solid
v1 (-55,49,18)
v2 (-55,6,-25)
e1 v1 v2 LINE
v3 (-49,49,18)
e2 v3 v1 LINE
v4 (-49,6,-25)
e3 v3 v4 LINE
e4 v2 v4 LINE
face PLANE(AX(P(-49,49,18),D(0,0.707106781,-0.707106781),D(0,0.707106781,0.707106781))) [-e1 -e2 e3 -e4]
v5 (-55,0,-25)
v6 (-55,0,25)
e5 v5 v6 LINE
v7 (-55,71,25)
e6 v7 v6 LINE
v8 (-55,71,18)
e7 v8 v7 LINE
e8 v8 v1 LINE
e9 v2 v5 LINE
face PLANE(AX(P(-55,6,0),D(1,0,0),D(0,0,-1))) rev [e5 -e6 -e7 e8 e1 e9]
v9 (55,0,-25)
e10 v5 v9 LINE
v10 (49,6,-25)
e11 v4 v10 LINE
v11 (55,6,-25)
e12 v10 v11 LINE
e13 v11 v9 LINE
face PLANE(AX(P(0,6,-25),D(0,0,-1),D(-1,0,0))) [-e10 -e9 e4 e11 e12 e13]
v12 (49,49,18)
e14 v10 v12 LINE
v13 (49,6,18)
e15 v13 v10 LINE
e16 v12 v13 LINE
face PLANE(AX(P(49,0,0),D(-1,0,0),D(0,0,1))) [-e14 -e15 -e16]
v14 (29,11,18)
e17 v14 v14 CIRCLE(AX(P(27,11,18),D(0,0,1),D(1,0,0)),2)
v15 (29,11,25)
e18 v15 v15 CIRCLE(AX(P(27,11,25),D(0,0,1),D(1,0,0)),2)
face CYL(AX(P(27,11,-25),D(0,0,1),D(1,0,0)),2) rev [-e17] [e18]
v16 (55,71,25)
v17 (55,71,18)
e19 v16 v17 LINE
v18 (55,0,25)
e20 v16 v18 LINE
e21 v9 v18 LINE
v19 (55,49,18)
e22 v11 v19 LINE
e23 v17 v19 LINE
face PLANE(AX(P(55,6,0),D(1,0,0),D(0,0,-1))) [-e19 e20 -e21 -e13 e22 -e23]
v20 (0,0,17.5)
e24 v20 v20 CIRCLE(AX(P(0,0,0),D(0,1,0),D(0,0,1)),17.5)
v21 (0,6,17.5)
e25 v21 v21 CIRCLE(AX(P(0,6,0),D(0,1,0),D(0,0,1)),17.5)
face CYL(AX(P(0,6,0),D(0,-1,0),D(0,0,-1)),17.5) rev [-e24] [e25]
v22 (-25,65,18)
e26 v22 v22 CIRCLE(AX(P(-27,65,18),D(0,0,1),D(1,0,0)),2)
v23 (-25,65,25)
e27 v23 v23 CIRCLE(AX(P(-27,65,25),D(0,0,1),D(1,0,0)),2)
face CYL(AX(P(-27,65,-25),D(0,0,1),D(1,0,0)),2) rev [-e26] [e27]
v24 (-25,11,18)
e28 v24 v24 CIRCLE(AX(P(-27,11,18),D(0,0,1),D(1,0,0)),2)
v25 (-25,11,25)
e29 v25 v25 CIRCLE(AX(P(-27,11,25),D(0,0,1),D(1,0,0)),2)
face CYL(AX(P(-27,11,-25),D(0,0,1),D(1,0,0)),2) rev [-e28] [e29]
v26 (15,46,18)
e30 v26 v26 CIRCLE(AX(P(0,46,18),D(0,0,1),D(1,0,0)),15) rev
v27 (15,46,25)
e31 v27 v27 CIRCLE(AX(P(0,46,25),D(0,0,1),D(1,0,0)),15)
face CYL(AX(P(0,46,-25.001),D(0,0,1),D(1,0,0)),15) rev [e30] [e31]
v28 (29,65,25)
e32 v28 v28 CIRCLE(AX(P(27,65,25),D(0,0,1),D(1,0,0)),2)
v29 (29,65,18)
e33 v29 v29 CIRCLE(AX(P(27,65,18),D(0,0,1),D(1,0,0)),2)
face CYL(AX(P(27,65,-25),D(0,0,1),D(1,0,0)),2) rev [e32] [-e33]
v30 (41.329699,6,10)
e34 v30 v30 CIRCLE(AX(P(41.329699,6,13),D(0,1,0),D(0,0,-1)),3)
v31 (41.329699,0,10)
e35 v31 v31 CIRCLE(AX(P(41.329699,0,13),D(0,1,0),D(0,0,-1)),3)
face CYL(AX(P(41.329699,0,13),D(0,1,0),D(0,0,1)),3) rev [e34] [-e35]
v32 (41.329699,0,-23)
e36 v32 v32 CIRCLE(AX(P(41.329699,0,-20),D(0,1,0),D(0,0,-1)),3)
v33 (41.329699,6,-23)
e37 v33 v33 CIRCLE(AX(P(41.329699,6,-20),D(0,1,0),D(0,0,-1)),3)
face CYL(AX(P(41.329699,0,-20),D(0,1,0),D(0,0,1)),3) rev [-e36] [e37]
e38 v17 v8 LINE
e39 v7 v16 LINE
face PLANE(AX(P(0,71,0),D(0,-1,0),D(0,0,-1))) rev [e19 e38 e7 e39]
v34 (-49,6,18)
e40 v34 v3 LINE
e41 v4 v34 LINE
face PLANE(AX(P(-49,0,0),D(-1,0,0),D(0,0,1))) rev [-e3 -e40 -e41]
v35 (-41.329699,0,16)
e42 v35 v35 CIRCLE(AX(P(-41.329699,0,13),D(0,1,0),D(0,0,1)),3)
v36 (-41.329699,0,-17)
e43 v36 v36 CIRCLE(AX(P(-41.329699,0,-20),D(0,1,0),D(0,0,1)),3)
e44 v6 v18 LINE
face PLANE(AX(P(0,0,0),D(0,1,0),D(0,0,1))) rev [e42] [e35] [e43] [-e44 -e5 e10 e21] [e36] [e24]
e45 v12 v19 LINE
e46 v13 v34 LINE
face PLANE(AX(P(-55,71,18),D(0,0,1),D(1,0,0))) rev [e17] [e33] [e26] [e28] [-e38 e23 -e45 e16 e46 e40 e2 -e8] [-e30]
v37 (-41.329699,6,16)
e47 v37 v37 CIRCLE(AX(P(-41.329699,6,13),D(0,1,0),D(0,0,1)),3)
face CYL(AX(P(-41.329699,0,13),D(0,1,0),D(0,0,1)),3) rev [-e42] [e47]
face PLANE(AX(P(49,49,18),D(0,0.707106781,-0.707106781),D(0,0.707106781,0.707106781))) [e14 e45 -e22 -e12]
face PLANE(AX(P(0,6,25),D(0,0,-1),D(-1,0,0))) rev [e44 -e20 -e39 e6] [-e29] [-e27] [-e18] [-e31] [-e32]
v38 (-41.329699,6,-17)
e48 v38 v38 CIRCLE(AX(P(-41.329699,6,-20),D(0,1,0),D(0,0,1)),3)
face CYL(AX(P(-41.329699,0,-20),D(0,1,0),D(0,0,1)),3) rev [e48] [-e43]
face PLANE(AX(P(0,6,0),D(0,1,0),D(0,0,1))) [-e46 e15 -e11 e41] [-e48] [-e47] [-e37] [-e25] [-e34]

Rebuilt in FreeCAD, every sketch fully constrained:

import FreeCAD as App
import Part
import Sketcher


def add_polygon(sketch, points):
    """Adds a closed chain of lines whose ends are joined by coincident constraints."""
    first, n = sketch.GeometryCount, len(points)
    for a, b in zip(points, points[1:] + points[:1]):
        sketch.addGeometry(Part.LineSegment(App.Vector(*a, 0), App.Vector(*b, 0)), False)
    for i in range(n):
        sketch.addConstraint(Sketcher.Constraint("Coincident", first + i, 2, first + (i + 1) % n, 1))

doc = App.newDocument("Part")
params = doc.addObject("Spreadsheet::Sheet", "Params")
for row, (alias, value) in enumerate([
    ("sketch1_diameter", "35 mm"),
    ("sketch1_width", "110 mm"),
    ("sketch1_height", "50 mm"),
    ("pad1_length", "6 mm"),
    ("sketch2_width", "110 mm"),
    ("sketch2_height", "7 mm"),
    ("pad2_length", "65 mm"),
    ("sketch3_width", "43 mm"),
    ("pad3_length", "6 mm"),
    ("sketch4_width", "43 mm"),
    ("pad4_length", "6 mm"),
    ("sketch5_diameter", "30 mm"),
    ("sketch6_diameter", "6 mm"),
    ("sketch7_diameter", "4 mm"),
], start=1):
    params.set(f"A{row}", alias)
    params.set(f"B{row}", "=" + value)
    params.setAlias(f"B{row}", alias)

body = doc.addObject("PartDesign::Body", "Body")

sketch1 = doc.addObject("Sketcher::SketchObject", "Sketch")
body.addObject(sketch1)
sketch1.AttachmentSupport = (doc.XZ_Plane, [""])
sketch1.MapMode = "FlatFace"
add_polygon(sketch1, [(-55, -25), (-55, 25), (55, 25), (55, -25)])
sketch1.addGeometry(Part.Circle(App.Vector(0, 0, 0), App.Vector(0, 0, 1), 18), False)
sketch1.addConstraint([
    Sketcher.Constraint("Vertical", 0),
    Sketcher.Constraint("Horizontal", 1),
    Sketcher.Constraint("Vertical", 2),
    Sketcher.Constraint("Horizontal", 3),
    Sketcher.Constraint("Coincident", 4, 3, -1, 1),
    Sketcher.Constraint("Symmetric", 0, 2, 2, 2, -1, 1),
    Sketcher.Constraint("Diameter", 4, 35.0),
    Sketcher.Constraint("DistanceX", 1, 1, 1, 2, 110.0),
    Sketcher.Constraint("DistanceY", 0, 1, 0, 2, 50.0),
])
sketch1.setExpression("Constraints[10]", "Params.sketch1_diameter")
sketch1.setExpression("Constraints[11]", "Params.sketch1_width")
sketch1.setExpression("Constraints[12]", "Params.sketch1_height")
pad1 = doc.addObject("PartDesign::Pad", "Pad")
body.addObject(pad1)
pad1.Profile = sketch1
pad1.setExpression("Length", "Params.pad1_length")
pad1.Reversed = True

sketch2 = doc.addObject("Sketcher::SketchObject", "Sketch001")
body.addObject(sketch2)
sketch2.AttachmentSupport = (doc.XZ_Plane, [""])
sketch2.MapMode = "FlatFace"
sketch2.AttachmentOffset = App.Placement(App.Vector(0, 0, -6), App.Rotation())
add_polygon(sketch2, [(-55, 18), (-55, 25), (55, 25), (55, 18)])
sketch2.addConstraint([
    Sketcher.Constraint("Vertical", 0),
    Sketcher.Constraint("Horizontal", 1),
    Sketcher.Constraint("Vertical", 2),
    Sketcher.Constraint("Horizontal", 3),
    Sketcher.Constraint("DistanceX", 1, 1, 1, 2, 110.0),
    Sketcher.Constraint("DistanceY", 0, 1, 0, 2, 7.0),
    Sketcher.Constraint("DistanceX", 0, 2, -1, 1, 55.0),
    Sketcher.Constraint("DistanceY", -1, 1, 0, 2, 25.0),
])
sketch2.setExpression("Constraints[8]", "Params.sketch2_width")
sketch2.setExpression("Constraints[9]", "Params.sketch2_height")
pad2 = doc.addObject("PartDesign::Pad", "Pad001")
body.addObject(pad2)
pad2.Profile = sketch2
pad2.setExpression("Length", "Params.pad2_length")
pad2.Reversed = True

sketch3 = doc.addObject("Sketcher::SketchObject", "Sketch002")
body.addObject(sketch3)
sketch3.AttachmentSupport = (doc.YZ_Plane, [""])
sketch3.MapMode = "FlatFace"
sketch3.AttachmentOffset = App.Placement(App.Vector(0, 0, 55), App.Rotation())
add_polygon(sketch3, [(6, 18), (6, -25), (49, 18)])
sketch3.addConstraint([
    Sketcher.Constraint("Vertical", 0),
    Sketcher.Constraint("Horizontal", 2),
    Sketcher.Constraint("Equal", 2, 0),
    Sketcher.Constraint("DistanceX", 2, 2, 2, 1, 43.0),
    Sketcher.Constraint("DistanceX", -1, 1, 0, 2, 6.0),
    Sketcher.Constraint("DistanceY", 0, 2, -1, 1, 25.0),
])
sketch3.setExpression("Constraints[6]", "Params.sketch3_width")
pad3 = doc.addObject("PartDesign::Pad", "Pad002")
body.addObject(pad3)
pad3.Profile = sketch3
pad3.setExpression("Length", "Params.pad3_length")
pad3.Reversed = True

sketch4 = doc.addObject("Sketcher::SketchObject", "Sketch003")
body.addObject(sketch4)
sketch4.AttachmentSupport = (doc.YZ_Plane, [""])
sketch4.MapMode = "FlatFace"
sketch4.AttachmentOffset = App.Placement(App.Vector(0, 0, -55), App.Rotation())
add_polygon(sketch4, [(6, -25), (6, 18), (49, 18)])
sketch4.addConstraint([
    Sketcher.Constraint("Vertical", 0),
    Sketcher.Constraint("Horizontal", 1),
    Sketcher.Constraint("Equal", 1, 0),
    Sketcher.Constraint("DistanceX", 1, 1, 1, 2, 43.0),
    Sketcher.Constraint("DistanceX", -1, 1, 0, 2, 6.0),
    Sketcher.Constraint("DistanceY", -1, 1, 0, 2, 18.0),
])
sketch4.setExpression("Constraints[6]", "Params.sketch4_width")
pad4 = doc.addObject("PartDesign::Pad", "Pad003")
body.addObject(pad4)
pad4.Profile = sketch4
pad4.setExpression("Length", "Params.pad4_length")

sketch5 = doc.addObject("Sketcher::SketchObject", "Sketch004")
body.addObject(sketch5)
sketch5.AttachmentSupport = (doc.XY_Plane, [""])
sketch5.MapMode = "FlatFace"
sketch5.AttachmentOffset = App.Placement(App.Vector(0, 0, 25), App.Rotation())
sketch5.addGeometry(Part.Circle(App.Vector(0, 46, 0), App.Vector(0, 0, 1), 15), False)
sketch5.addConstraint([
    Sketcher.Constraint("PointOnObject", 0, 3, -2),
    Sketcher.Constraint("Diameter", 0, 30.0),
    Sketcher.Constraint("DistanceY", -1, 1, 0, 3, 46.0),
])
sketch5.setExpression("Constraints[1]", "Params.sketch5_diameter")
pocket1 = doc.addObject("PartDesign::Pocket", "Pocket")
body.addObject(pocket1)
pocket1.Profile = sketch5
pocket1.Type = "UpToFirst"

sketch6 = doc.addObject("Sketcher::SketchObject", "Sketch005")
body.addObject(sketch6)
sketch6.AttachmentSupport = (doc.XZ_Plane, [""])
sketch6.MapMode = "FlatFace"
sketch6.AttachmentOffset = App.Placement(App.Vector(0, 0, -6), App.Rotation())
sketch6.addGeometry([
    Part.Circle(App.Vector(-41.3, -20, 0), App.Vector(0, 0, 1), 3),
    Part.Circle(App.Vector(-41.3, 13, 0), App.Vector(0, 0, 1), 3),
    Part.Circle(App.Vector(41.3, 13, 0), App.Vector(0, 0, 1), 3),
    Part.Circle(App.Vector(41.3, -20, 0), App.Vector(0, 0, 1), 3),
], False)
sketch6.addConstraint([
    Sketcher.Constraint("Equal", 0, 1),
    Sketcher.Constraint("Equal", 1, 2),
    Sketcher.Constraint("Equal", 2, 3),
    Sketcher.Constraint("Symmetric", 1, 3, 2, 3, -2),
    Sketcher.Constraint("Symmetric", 0, 3, 3, 3, -2),
    Sketcher.Constraint("Vertical", 0, 3, 1, 3),
    Sketcher.Constraint("Diameter", 0, 6.0),
    Sketcher.Constraint("DistanceY", 0, 3, -1, 1, 20.0),
    Sketcher.Constraint("DistanceY", -1, 1, 1, 3, 13.0),
    Sketcher.Constraint("DistanceX", 0, 3, -1, 1, 41.329699),
])
sketch6.setExpression("Constraints[6]", "Params.sketch6_diameter")
pocket2 = doc.addObject("PartDesign::Pocket", "Pocket001")
body.addObject(pocket2)
pocket2.Profile = sketch6
pocket2.Type = "ThroughAll"
pocket2.Reversed = True

sketch7 = doc.addObject("Sketcher::SketchObject", "Sketch006")
body.addObject(sketch7)
sketch7.AttachmentSupport = (doc.XY_Plane, [""])
sketch7.MapMode = "FlatFace"
sketch7.AttachmentOffset = App.Placement(App.Vector(0, 0, 25), App.Rotation())
sketch7.addGeometry([
    Part.Circle(App.Vector(-27, 65, 0), App.Vector(0, 0, 1), 2),
    Part.Circle(App.Vector(27, 65, 0), App.Vector(0, 0, 1), 2),
    Part.Circle(App.Vector(-27, 11, 0), App.Vector(0, 0, 1), 2),
    Part.Circle(App.Vector(27, 11, 0), App.Vector(0, 0, 1), 2),
], False)
sketch7.addConstraint([
    Sketcher.Constraint("Equal", 0, 1),
    Sketcher.Constraint("Equal", 1, 2),
    Sketcher.Constraint("Equal", 2, 3),
    Sketcher.Constraint("Symmetric", 0, 3, 1, 3, -2),
    Sketcher.Constraint("Symmetric", 2, 3, 3, 3, -2),
    Sketcher.Constraint("Vertical", 0, 3, 2, 3),
    Sketcher.Constraint("Diameter", 0, 4.0),
    Sketcher.Constraint("DistanceX", 0, 3, -1, 1, 27.0),
    Sketcher.Constraint("DistanceY", -1, 1, 0, 3, 65.0),
    Sketcher.Constraint("DistanceY", -1, 1, 2, 3, 11.0),
])
sketch7.setExpression("Constraints[6]", "Params.sketch7_diameter")
pocket3 = doc.addObject("PartDesign::Pocket", "Pocket002")
body.addObject(pocket3)
pocket3.Profile = sketch7
pocket3.Type = "ThroughAll"

doc.recompute()
